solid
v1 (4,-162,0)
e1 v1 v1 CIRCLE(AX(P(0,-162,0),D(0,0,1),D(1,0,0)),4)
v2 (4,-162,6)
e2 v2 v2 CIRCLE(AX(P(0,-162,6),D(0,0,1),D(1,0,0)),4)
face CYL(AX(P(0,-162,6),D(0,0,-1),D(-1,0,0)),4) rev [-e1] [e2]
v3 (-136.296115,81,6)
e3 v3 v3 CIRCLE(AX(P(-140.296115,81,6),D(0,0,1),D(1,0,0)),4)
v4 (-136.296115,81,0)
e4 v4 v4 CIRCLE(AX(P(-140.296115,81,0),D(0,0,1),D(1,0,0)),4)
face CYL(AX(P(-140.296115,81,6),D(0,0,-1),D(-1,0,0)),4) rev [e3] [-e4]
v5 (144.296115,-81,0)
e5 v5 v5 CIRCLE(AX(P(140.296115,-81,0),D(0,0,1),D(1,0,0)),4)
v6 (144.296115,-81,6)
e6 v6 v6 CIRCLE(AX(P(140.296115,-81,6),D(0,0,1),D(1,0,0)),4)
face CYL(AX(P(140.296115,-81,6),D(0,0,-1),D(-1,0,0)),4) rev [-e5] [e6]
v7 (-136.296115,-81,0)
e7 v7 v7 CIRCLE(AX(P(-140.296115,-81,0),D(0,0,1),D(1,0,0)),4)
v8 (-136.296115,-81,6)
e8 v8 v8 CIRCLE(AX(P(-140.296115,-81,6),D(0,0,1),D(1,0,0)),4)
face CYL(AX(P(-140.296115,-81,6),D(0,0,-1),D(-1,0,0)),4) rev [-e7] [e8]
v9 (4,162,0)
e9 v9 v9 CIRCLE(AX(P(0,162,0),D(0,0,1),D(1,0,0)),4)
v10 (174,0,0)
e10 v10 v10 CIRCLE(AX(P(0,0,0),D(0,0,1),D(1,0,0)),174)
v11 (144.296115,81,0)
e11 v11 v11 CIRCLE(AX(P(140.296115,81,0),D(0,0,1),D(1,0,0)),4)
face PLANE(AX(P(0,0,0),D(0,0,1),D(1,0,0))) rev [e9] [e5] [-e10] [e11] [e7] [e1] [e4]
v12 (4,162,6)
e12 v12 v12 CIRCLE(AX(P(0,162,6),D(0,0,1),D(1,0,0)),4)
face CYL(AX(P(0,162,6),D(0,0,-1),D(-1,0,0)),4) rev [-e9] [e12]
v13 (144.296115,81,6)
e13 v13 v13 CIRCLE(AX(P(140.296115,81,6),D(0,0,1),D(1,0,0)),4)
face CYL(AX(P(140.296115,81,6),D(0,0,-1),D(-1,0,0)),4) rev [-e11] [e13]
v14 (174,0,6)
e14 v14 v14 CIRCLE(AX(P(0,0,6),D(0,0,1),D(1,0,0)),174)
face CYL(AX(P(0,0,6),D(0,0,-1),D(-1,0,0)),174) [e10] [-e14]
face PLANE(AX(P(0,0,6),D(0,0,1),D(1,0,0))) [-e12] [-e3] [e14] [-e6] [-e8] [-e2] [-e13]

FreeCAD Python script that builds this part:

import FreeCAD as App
import Part
import Sketcher
from FreeCAD import Vector
Q = App.Units.Quantity

doc = App.newDocument("Part")
params = doc.addObject("Spreadsheet::Sheet", "Params")
for row, (alias, value) in enumerate([
    ("sketch1_diameter", "348 mm"),
    ("sketch1_diameter2", "8 mm"),
    ("pad1_length", "6 mm"),
], start=1):
    params.set(f"A{row}", alias)
    params.set(f"B{row}", "=" + value)
    params.setAlias(f"B{row}", alias)

body = doc.addObject("PartDesign::Body", "Body")

sketch1 = doc.addObject("Sketcher::SketchObject", "Sketch")
body.addObject(sketch1)
sketch1.AttachmentSupport = (doc.XY_Plane, [""])
sketch1.MapMode = "FlatFace"
sketch1.addGeometry(Part.Circle(Vector(0, 0, 0), Vector(0, 0, 1), 174), False)
sketch1.addGeometry(Part.Circle(Vector(-140.296115, -81, 0), Vector(0, 0, 1), 4), False)
sketch1.addGeometry(Part.Circle(Vector(0, -162, 0), Vector(0, 0, 1), 4), False)
sketch1.addGeometry(Part.Circle(Vector(140.296115, -81, 0), Vector(0, 0, 1), 4), False)
sketch1.addGeometry(Part.Circle(Vector(-140.296115, 81, 0), Vector(0, 0, 1), 4), False)
sketch1.addGeometry(Part.Circle(Vector(140.296115, 81, 0), Vector(0, 0, 1), 4), False)
sketch1.addGeometry(Part.Circle(Vector(0, 162, 0), Vector(0, 0, 1), 4), False)
sketch1.addConstraint(Sketcher.Constraint("Coincident", 0, 3, -1, 1))
sketch1.addConstraint(Sketcher.Constraint("Equal", 1, 2))
sketch1.addConstraint(Sketcher.Constraint("Equal", 2, 3))
sketch1.addConstraint(Sketcher.Constraint("Equal", 3, 4))
sketch1.addConstraint(Sketcher.Constraint("Equal", 4, 5))
sketch1.addConstraint(Sketcher.Constraint("Equal", 5, 6))
sketch1.addConstraint(Sketcher.Constraint("Symmetric", 3, 3, 4, 3, -1, 1))
sketch1.addConstraint(Sketcher.Constraint("Symmetric", 1, 3, 5, 3, -1, 1))
sketch1.addConstraint(Sketcher.Constraint("Symmetric", 2, 3, 6, 3, -1, 1))
sketch1.addConstraint(Sketcher.Constraint("Symmetric", 1, 3, 3, 3, -2))
sketch1.addConstraint(Sketcher.Constraint("PointOnObject", 2, 3, -2))
sketch1.addConstraint(Sketcher.Constraint("Diameter", 0, Q("348 mm")))
sketch1.addConstraint(Sketcher.Constraint("Diameter", 1, Q("8 mm")))
sketch1.addConstraint(Sketcher.Constraint("DistanceY", 1, 3, -1, 1, Q("81 mm")))
sketch1.addConstraint(Sketcher.Constraint("DistanceY", 2, 3, -1, 1, Q("162 mm")))
sketch1.addConstraint(Sketcher.Constraint("DistanceX", 1, 3, 3, 3, Q("280.592231 mm")))
sketch1.setExpression("Constraints[11]", "Params.sketch1_diameter")
sketch1.setExpression("Constraints[12]", "Params.sketch1_diameter2")
pad1 = doc.addObject("PartDesign::Pad", "Pad")
body.addObject(pad1)
pad1.Profile = sketch1
pad1.setExpression("Length", "Params.pad1_length")

doc.recompute()
